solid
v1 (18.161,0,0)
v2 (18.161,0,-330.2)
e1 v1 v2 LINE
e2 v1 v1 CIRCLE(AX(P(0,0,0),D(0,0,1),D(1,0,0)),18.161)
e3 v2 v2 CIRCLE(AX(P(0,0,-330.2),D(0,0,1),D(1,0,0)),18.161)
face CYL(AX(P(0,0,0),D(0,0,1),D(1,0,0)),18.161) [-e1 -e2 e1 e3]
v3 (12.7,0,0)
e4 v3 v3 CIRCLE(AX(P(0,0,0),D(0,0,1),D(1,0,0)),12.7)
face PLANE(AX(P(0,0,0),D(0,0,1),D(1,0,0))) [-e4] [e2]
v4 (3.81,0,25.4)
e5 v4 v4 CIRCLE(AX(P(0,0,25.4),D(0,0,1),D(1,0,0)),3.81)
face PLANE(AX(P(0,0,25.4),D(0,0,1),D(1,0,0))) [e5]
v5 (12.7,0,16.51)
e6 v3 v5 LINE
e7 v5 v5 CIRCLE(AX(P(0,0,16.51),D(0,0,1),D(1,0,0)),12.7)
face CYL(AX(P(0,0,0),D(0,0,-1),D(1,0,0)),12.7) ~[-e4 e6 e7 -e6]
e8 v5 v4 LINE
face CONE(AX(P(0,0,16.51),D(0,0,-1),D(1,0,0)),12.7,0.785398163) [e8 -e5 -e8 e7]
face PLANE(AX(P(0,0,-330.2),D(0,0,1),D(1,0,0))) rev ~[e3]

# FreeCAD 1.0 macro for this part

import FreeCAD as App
import Part
import Sketcher

V = App.Vector
Q = App.Units.Quantity


def edges_at(feature, points):
    """Names of the edges that pass closest to the given points."""
    edges = feature.Shape.Edges
    near = lambda p: min(range(len(edges)), key=lambda i: edges[i].distToShape(Part.Vertex(*p))[0])
    return sorted({f"Edge{near(p) + 1}" for p in points})

doc = App.newDocument("Part")
body = doc.addObject("PartDesign::Body", "Body")

sketch1 = body.newObject("Sketcher::SketchObject", "Sketch")
sketch1.AttachmentSupport = (doc.getObject("XY_Plane"), [""])
sketch1.MapMode = "FlatFace"
sketch1.addGeometry(Part.Circle(V(0, 0, 0), V(0, 0, 1), 18), False)
sketch1.addConstraint([
    Sketcher.Constraint("Coincident", 0, 3, -1, 1),
    Sketcher.Constraint("Diameter", 0, Q("1.43 in")),
])
pad1 = body.newObject("PartDesign::Pad", "Pad")
pad1.Profile = sketch1
pad1.Length = Q("13 in")
pad1.Reversed = True

sketch2 = body.newObject("Sketcher::SketchObject", "Sketch001")
sketch2.AttachmentSupport = (doc.getObject("XY_Plane"), [""])
sketch2.MapMode = "FlatFace"
sketch2.addGeometry(Part.Circle(V(0, 0, 0), V(0, 0, 1), 13), False)
sketch2.addConstraint([
    Sketcher.Constraint("Coincident", 0, 3, -1, 1),
    Sketcher.Constraint("Diameter", 0, Q("1 in")),
])
pad2 = body.newObject("PartDesign::Pad", "Pad001")
pad2.Profile = sketch2
pad2.Length = Q("1 in")
doc.recompute()

chamfer = body.newObject("PartDesign::Chamfer", "Chamfer")
chamfer.Base = (pad2, edges_at(pad2, [(-12.7, 0, 25.4)]))
chamfer.Size = Q("0.35 in")

doc.recompute()
